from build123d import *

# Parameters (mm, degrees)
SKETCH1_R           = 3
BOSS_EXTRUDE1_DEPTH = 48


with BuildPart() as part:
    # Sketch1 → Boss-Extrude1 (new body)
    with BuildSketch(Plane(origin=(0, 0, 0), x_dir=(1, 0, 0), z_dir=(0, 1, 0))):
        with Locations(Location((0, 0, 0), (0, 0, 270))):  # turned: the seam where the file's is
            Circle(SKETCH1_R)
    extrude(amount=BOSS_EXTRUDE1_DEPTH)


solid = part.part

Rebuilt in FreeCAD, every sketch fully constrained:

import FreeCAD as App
import Part
import Sketcher
from FreeCAD import Vector

doc = App.newDocument("Part")
body = doc.addObject("PartDesign::Body", "Body")

sketch1 = body.newObject("Sketcher::SketchObject", "Sketch")
sketch1.AttachmentSupport = (doc.getObject("XZ_Plane"), [""])
sketch1.MapMode = "FlatFace"
sketch1.addGeometry(Part.Circle(Vector(0, 0, 0), Vector(0, 0, 1), 3), False)
sketch1.addConstraint([
    Sketcher.Constraint("Coincident", 0, 3, -1, 1),
    Sketcher.Constraint("Diameter", 0, 6.0),
])
pad1 = body.newObject("PartDesign::Pad", "Pad")
pad1.Profile = sketch1
pad1.Length = 48
pad1.Reversed = True

doc.recompute()
